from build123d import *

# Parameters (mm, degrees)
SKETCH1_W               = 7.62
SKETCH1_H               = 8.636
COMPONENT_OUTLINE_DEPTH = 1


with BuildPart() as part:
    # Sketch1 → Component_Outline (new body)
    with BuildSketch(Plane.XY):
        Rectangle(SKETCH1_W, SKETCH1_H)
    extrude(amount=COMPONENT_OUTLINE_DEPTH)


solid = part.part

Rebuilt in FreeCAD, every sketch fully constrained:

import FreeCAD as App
import Part
import Sketcher

V = App.Vector
Q = App.Units.Quantity

doc = App.newDocument("Part")
params = doc.addObject("Spreadsheet::Sheet", "Params")
for row, (alias, value) in enumerate([
    ("sketch1_width", "0.3 in"),
    ("sketch1_height", "0.34 in"),
    ("pad1_length", "1 mm"),
], start=1):
    params.set(f"A{row}", alias)
    params.set(f"B{row}", "=" + value)
    params.setAlias(f"B{row}", alias)

body = doc.addObject("PartDesign::Body", "Body")

# Sketch on XY plane
sketch1 = body.newObject("Sketcher::SketchObject", "Sketch")
sketch1.AttachmentSupport = (doc.getObject("XY_Plane"), [""])
sketch1.MapMode = "FlatFace"
sketch1.addGeometry(Part.LineSegment(V(-4, 4, 0), V(-4, -4, 0)), False)
sketch1.addGeometry(Part.LineSegment(V(-4, -4, 0), V(4, -4, 0)), False)
sketch1.addGeometry(Part.LineSegment(V(4, -4, 0), V(4, 4, 0)), False)
sketch1.addGeometry(Part.LineSegment(V(4, 4, 0), V(-4, 4, 0)), False)
sketch1.addConstraint(Sketcher.Constraint("Coincident", 0, 2, 1, 1))
sketch1.addConstraint(Sketcher.Constraint("Coincident", 1, 2, 2, 1))
sketch1.addConstraint(Sketcher.Constraint("Coincident", 2, 2, 3, 1))
sketch1.addConstraint(Sketcher.Constraint("Coincident", 3, 2, 0, 1))
sketch1.addConstraint(Sketcher.Constraint("Vertical", 0))
sketch1.addConstraint(Sketcher.Constraint("Horizontal", 1))
sketch1.addConstraint(Sketcher.Constraint("Vertical", 2))
sketch1.addConstraint(Sketcher.Constraint("Horizontal", 3))
sketch1.addConstraint(Sketcher.Constraint("Symmetric", 0, 2, 2, 2, -1, 1))
sketch1.addConstraint(Sketcher.Constraint("DistanceX", 1, 1, 1, 2, Q("0.3 in")))
sketch1.addConstraint(Sketcher.Constraint("DistanceY", 0, 2, 0, 1, Q("0.34 in")))
sketch1.setExpression("Constraints[9]", "Params.sketch1_width")
sketch1.setExpression("Constraints[10]", "Params.sketch1_height")
pad1 = body.newObject("PartDesign::Pad", "Pad")
pad1.Profile = sketch1
pad1.setExpression("Length", "Params.pad1_length")

doc.recompute()
